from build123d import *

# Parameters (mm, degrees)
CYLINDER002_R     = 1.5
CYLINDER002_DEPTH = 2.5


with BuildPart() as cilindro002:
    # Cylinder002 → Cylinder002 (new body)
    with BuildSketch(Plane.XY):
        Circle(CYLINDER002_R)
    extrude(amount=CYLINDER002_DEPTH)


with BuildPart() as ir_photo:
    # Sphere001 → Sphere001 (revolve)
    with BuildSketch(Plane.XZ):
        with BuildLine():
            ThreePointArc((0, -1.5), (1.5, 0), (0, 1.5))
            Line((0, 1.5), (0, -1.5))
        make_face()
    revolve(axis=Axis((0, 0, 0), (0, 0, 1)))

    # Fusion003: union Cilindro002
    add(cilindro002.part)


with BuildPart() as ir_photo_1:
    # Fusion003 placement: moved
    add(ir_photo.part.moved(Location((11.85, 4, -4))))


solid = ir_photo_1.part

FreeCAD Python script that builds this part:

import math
import FreeCAD as App
import Part
import Sketcher
Q = App.Units.Quantity

doc = App.newDocument("Part")
body = doc.addObject("PartDesign::Body", "Body")

# Sketch on XY plane
sketch1 = body.newObject("Sketcher::SketchObject", "Sketch")
sketch1.AttachmentSupport = (doc.getObject("XY_Plane"), [""])
sketch1.MapMode = "FlatFace"
sketch1.addGeometry(Part.Circle(App.Vector(0, 0, 0), App.Vector(0, 0, 1), 1.5), False)
sketch1.addConstraint([
    Sketcher.Constraint("Coincident", 0, 3, -1, 1),
    Sketcher.Constraint("Diameter", 0, Q("3 mm")),
])
pad1 = body.newObject("PartDesign::Pad", "Pad")
pad1.Profile = sketch1
pad1.Length = 2.5
body2 = doc.addObject("PartDesign::Body", "Body001")

# Sketch on XZ plane
sketch2 = body2.newObject("Sketcher::SketchObject", "Sketch001")
sketch2.AttachmentSupport = (doc.getObject("XZ_Plane001"), [""])
sketch2.MapMode = "FlatFace"
sketch2.addGeometry([
    Part.ArcOfCircle(Part.Circle(App.Vector(0, 0, 0), App.Vector(0, 0, 1), 1.5), math.radians(-90), math.radians(90)),
    Part.LineSegment(App.Vector(0, 1.5, 0), App.Vector(0, -1.5, 0)),
], False)
sketch2.addConstraint([
    Sketcher.Constraint("Coincident", 0, 1, 1, 2),
    Sketcher.Constraint("Coincident", 1, 1, 0, 2),
    Sketcher.Constraint("Vertical", 1),
    Sketcher.Constraint("Coincident", 0, 3, -1, 1),
    Sketcher.Constraint("PointOnObject", 0, 1, -2),
    Sketcher.Constraint("Radius", 0, Q("1.5 mm")),
])
revolution = body2.newObject("PartDesign::Revolution", "Revolution")
revolution.Profile = sketch2
revolution.ReferenceAxis = (sketch2, ["V_Axis"])
revolution.Angle = 360
doc.recompute()

boolean = body2.newObject("PartDesign::Boolean", "Boolean")
boolean.Type = "Fuse"
boolean.addObjects([body])
body3 = doc.addObject("PartDesign::Body", "Body002")
doc.recompute()

body2.Placement = App.Placement(App.Vector(11.85, 4, -4), App.Rotation(App.Vector(0, 0, 1), 0))
boolean2 = body3.newObject("PartDesign::Boolean", "Boolean001")
boolean2.Type = "Fuse"
boolean2.addObjects([body2])

doc.recompute()
